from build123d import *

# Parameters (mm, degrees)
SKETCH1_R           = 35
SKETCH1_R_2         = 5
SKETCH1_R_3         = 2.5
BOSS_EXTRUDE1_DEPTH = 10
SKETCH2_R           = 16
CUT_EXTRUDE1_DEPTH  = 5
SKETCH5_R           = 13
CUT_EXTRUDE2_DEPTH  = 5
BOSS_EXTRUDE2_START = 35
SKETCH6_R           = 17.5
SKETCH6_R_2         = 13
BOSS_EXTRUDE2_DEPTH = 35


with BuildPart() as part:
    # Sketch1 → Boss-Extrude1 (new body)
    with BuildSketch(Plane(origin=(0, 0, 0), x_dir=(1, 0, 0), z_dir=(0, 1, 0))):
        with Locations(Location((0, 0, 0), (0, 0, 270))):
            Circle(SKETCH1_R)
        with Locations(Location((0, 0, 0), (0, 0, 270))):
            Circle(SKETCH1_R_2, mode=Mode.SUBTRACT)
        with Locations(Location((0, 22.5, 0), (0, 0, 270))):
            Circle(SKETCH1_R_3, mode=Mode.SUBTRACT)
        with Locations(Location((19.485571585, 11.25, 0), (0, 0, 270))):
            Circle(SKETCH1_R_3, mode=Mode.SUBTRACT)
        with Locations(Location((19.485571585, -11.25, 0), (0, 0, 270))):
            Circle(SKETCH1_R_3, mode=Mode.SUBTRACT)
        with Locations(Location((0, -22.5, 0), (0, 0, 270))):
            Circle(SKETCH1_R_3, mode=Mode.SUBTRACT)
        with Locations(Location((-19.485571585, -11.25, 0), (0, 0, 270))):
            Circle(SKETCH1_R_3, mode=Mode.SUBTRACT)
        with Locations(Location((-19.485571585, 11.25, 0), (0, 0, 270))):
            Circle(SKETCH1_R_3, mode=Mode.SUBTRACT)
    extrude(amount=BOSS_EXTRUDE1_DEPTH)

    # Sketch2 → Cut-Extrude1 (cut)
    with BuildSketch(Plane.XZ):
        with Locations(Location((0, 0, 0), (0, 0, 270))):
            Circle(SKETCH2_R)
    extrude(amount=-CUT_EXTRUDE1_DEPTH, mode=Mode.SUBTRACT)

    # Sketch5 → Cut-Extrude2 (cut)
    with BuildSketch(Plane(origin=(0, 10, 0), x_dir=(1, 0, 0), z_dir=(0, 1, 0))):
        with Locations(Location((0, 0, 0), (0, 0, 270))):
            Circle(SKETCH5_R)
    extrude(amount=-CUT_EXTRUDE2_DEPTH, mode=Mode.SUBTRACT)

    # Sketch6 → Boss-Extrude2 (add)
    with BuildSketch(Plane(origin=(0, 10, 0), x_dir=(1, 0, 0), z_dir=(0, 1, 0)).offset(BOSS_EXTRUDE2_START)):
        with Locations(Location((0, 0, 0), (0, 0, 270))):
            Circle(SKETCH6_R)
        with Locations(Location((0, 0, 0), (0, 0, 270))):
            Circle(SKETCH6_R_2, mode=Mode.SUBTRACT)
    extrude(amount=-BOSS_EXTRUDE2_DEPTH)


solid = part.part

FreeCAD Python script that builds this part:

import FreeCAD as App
import Part
import Sketcher
from FreeCAD import Vector

doc = App.newDocument("Part")
body = doc.addObject("PartDesign::Body", "Body")

# Sketch on XZ plane
sketch1 = body.newObject("Sketcher::SketchObject", "Sketch")
sketch1.AttachmentSupport = (doc.getObject("XZ_Plane"), [""])
sketch1.MapMode = "FlatFace"
sketch1.addGeometry([
    Part.Circle(Vector(0, 0, 0), Vector(0, 0, 1), 35),  # 0
    Part.Circle(Vector(-19.5, -11.2, 0), Vector(0, 0, 1), 2.5),  # 1
    Part.Circle(Vector(0, -22.5, 0), Vector(0, 0, 1), 2.5),  # 2
    Part.Circle(Vector(-19.5, 11.2, 0), Vector(0, 0, 1), 2.5),  # 3
    Part.Circle(Vector(19.5, -11.2, 0), Vector(0, 0, 1), 2.5),  # 4
    Part.Circle(Vector(0, 0, 0), Vector(0, 0, 1), 5),  # 5
    Part.Circle(Vector(0, 22.5, 0), Vector(0, 0, 1), 2.5),  # 6
    Part.Circle(Vector(19.5, 11.2, 0), Vector(0, 0, 1), 2.5),  # 7
], False)
sketch1.addConstraint([
    Sketcher.Constraint("Coincident", 0, 3, -1, 1),
    Sketcher.Constraint("Coincident", 5, 3, -1, 1),
    Sketcher.Constraint("Equal", 1, 2),
    Sketcher.Constraint("Equal", 2, 3),
    Sketcher.Constraint("Equal", 3, 4),
    Sketcher.Constraint("Equal", 4, 6),
    Sketcher.Constraint("Equal", 6, 7),
    Sketcher.Constraint("Symmetric", 3, 3, 4, 3, -1, 1),
    Sketcher.Constraint("Symmetric", 2, 3, 6, 3, -1, 1),
    Sketcher.Constraint("Symmetric", 1, 3, 7, 3, -1, 1),
    Sketcher.Constraint("Symmetric", 1, 3, 4, 3, -2),
    Sketcher.Constraint("PointOnObject", 2, 3, -2),
    Sketcher.Constraint("Diameter", 0, 70.0),
    Sketcher.Constraint("Diameter", 1, 5.0),
    Sketcher.Constraint("Diameter", 5, 10.0),
    Sketcher.Constraint("DistanceY", 2, 3, -1, 1, 22.5),
    Sketcher.Constraint("DistanceY", 1, 3, 3, 3, 22.5),
    Sketcher.Constraint("DistanceX", 1, 3, -1, 1, 19.485572),
])
pad1 = body.newObject("PartDesign::Pad", "Pad")
pad1.Profile = sketch1
pad1.Length = 10
pad1.Reversed = True

# Sketch on XZ plane
sketch2 = body.newObject("Sketcher::SketchObject", "Sketch001")
sketch2.AttachmentSupport = (doc.getObject("XZ_Plane"), [""])
sketch2.MapMode = "FlatFace"
sketch2.addGeometry(Part.Circle(Vector(0, 0, 0), Vector(0, 0, 1), 16), False)
sketch2.addConstraint([
    Sketcher.Constraint("Coincident", 0, 3, -1, 1),
    Sketcher.Constraint("Diameter", 0, 32.0),
])
pocket1 = body.newObject("PartDesign::Pocket", "Pocket")
pocket1.Profile = sketch2
pocket1.Length = 5

# Sketch on XZ plane
sketch3 = body.newObject("Sketcher::SketchObject", "Sketch002")
sketch3.AttachmentSupport = (doc.getObject("XZ_Plane"), [""])
sketch3.MapMode = "FlatFace"
sketch3.AttachmentOffset = App.Placement(Vector(0, 0, -10), App.Rotation())
sketch3.addGeometry(Part.Circle(Vector(0, 0, 0), Vector(0, 0, 1), 13), False)
sketch3.addConstraint([
    Sketcher.Constraint("Coincident", 0, 3, -1, 1),
    Sketcher.Constraint("Diameter", 0, 26.0),
])
pocket2 = body.newObject("PartDesign::Pocket", "Pocket001")
pocket2.Profile = sketch3
pocket2.Length = 5
pocket2.Reversed = True

# Sketch on XZ plane
sketch4 = body.newObject("Sketcher::SketchObject", "Sketch003")
sketch4.AttachmentSupport = (doc.getObject("XZ_Plane"), [""])
sketch4.MapMode = "FlatFace"
sketch4.AttachmentOffset = App.Placement(Vector(0, 0, -45), App.Rotation())
sketch4.addGeometry([
    Part.Circle(Vector(0, 0, 0), Vector(0, 0, 1), 18),
    Part.Circle(Vector(0, 0, 0), Vector(0, 0, 1), 13),
], False)
sketch4.addConstraint([
    Sketcher.Constraint("Coincident", 0, 3, -1, 1),
    Sketcher.Constraint("Coincident", 1, 3, -1, 1),
    Sketcher.Constraint("Diameter", 0, 35.0),
    Sketcher.Constraint("Diameter", 1, 26.0),
])
pad2 = body.newObject("PartDesign::Pad", "Pad001")
pad2.Profile = sketch4
pad2.Length = 35

doc.recompute()
